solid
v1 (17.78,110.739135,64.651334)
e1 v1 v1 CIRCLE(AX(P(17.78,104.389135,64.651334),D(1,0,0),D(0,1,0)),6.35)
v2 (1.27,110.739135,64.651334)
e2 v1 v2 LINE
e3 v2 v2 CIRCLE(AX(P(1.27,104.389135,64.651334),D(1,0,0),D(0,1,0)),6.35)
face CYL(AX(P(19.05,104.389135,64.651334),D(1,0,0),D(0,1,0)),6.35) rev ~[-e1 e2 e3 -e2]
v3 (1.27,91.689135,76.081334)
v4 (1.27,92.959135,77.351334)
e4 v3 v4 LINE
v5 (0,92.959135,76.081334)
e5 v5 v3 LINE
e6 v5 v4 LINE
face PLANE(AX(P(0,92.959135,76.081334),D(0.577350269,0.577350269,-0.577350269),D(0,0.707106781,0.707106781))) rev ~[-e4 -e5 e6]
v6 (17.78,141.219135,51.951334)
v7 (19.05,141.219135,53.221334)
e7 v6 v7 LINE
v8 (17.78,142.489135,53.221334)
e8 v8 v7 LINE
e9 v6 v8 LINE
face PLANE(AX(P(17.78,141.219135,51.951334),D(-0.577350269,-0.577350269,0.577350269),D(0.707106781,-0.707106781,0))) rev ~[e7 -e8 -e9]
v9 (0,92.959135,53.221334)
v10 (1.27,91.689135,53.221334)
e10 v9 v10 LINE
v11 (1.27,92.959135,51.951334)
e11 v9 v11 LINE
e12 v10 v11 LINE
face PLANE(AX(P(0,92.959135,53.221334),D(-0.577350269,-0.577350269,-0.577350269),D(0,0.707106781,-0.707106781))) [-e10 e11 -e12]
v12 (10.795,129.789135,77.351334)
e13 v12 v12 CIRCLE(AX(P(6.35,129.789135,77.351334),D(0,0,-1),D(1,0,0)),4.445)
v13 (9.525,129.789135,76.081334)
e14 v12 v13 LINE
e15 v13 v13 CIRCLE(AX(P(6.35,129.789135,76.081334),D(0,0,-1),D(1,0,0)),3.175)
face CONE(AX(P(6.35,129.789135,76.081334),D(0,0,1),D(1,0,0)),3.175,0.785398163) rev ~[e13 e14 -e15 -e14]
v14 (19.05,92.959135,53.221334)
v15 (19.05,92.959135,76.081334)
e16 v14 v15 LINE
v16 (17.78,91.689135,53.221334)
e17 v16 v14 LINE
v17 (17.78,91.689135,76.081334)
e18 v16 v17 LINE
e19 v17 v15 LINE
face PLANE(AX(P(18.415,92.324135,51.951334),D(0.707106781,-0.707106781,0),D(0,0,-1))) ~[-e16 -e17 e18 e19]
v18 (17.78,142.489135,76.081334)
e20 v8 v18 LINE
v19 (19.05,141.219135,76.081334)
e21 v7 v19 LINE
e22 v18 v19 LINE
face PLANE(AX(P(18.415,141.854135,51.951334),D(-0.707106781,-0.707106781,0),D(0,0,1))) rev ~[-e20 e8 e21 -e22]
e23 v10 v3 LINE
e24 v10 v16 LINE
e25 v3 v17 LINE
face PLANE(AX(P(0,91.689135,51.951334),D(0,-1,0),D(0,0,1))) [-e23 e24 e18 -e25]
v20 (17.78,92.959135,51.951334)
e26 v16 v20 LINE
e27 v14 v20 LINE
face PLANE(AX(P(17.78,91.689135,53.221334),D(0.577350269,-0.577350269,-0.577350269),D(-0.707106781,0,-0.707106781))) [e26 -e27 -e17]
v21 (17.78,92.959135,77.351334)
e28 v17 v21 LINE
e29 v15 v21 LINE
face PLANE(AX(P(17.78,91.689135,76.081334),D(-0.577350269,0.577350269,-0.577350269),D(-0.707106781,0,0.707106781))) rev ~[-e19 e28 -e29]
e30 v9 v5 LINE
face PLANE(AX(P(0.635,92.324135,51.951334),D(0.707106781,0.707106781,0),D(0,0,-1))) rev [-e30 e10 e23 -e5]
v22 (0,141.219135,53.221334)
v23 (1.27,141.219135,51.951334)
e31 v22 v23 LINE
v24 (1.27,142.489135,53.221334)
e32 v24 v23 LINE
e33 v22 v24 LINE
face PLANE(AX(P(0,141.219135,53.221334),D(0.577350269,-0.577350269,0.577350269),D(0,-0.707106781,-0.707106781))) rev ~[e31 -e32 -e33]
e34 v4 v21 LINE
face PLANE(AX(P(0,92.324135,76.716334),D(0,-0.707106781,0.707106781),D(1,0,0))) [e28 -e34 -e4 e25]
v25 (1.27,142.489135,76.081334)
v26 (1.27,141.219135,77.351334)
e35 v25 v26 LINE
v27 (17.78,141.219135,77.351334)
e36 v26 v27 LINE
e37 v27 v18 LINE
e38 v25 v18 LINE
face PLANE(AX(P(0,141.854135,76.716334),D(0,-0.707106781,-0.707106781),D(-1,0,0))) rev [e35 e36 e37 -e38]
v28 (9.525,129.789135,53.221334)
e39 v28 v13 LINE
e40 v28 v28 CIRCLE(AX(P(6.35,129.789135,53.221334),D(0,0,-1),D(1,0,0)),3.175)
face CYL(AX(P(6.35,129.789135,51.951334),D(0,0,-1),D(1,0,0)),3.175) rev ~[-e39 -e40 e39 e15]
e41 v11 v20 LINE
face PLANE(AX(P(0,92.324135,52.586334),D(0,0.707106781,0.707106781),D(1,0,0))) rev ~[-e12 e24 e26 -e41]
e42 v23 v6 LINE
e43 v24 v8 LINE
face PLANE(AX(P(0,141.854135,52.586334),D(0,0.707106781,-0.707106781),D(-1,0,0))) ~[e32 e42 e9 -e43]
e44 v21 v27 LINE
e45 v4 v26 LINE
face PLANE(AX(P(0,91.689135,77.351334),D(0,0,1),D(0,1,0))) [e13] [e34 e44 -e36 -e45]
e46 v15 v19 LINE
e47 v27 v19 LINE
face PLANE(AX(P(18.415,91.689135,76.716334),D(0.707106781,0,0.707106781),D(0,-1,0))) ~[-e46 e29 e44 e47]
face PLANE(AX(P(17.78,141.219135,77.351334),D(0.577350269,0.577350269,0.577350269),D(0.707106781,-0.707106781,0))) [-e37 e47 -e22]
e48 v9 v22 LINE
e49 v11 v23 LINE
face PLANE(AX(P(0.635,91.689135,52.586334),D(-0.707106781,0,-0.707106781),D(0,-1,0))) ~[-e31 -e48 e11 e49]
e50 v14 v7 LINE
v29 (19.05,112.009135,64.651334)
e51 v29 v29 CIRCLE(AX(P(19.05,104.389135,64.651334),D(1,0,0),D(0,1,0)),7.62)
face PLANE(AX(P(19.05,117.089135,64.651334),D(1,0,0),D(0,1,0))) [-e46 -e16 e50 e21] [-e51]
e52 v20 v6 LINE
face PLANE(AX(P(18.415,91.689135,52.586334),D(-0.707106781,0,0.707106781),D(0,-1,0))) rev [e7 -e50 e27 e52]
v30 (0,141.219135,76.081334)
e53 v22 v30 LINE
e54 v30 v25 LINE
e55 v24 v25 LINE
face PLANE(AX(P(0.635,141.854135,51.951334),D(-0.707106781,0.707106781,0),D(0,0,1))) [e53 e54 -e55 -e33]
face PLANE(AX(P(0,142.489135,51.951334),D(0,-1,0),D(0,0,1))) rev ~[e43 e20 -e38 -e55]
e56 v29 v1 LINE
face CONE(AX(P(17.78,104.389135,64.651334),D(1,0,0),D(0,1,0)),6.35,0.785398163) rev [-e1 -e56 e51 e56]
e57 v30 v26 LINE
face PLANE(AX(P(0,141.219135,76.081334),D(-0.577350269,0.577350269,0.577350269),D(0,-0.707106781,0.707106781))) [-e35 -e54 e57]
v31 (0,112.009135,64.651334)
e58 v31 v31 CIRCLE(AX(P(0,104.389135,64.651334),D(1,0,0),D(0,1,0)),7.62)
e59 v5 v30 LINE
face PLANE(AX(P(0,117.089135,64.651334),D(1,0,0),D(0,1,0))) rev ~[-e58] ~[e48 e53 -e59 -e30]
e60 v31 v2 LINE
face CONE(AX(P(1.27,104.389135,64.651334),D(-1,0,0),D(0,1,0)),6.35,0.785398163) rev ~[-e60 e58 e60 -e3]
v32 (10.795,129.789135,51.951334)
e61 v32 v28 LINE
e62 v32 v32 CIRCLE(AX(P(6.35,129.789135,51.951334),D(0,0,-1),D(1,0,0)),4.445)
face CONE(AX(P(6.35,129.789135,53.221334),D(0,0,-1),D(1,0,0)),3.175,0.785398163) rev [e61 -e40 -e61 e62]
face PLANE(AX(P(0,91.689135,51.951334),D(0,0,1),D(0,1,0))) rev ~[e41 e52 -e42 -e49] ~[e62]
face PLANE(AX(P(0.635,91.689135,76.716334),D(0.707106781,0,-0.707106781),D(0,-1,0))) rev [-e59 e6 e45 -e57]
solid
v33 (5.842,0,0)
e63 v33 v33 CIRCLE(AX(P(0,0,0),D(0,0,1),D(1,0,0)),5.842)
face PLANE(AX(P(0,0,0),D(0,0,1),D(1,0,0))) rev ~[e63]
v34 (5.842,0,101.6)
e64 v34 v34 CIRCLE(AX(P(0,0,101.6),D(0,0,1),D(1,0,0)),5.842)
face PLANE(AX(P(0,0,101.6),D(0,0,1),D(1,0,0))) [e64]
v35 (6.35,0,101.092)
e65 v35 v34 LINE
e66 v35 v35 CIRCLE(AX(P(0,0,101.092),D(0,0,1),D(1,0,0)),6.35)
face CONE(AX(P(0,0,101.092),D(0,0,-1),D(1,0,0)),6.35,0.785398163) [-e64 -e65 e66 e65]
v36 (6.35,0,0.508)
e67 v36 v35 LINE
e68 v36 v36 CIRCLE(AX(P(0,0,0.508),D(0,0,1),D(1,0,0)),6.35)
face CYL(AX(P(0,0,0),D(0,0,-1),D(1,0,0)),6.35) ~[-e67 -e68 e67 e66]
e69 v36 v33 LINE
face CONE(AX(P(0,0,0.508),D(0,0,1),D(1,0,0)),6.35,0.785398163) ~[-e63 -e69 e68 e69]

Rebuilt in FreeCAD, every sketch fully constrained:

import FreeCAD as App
import Part
import Sketcher
from FreeCAD import Vector
Q = App.Units.Quantity


def edges_at(feature, points):
    """Names of the edges that pass closest to the given points."""
    edges = feature.Shape.Edges
    near = lambda p: min(range(len(edges)), key=lambda i: edges[i].distToShape(Part.Vertex(*p))[0])
    return sorted({f"Edge{near(p) + 1}" for p in points})

doc = App.newDocument("Part")
body = doc.addObject("PartDesign::Body", "Body")

# Sketch on XY plane
sketch1 = body.newObject("Sketcher::SketchObject", "Sketch")
sketch1.AttachmentSupport = (doc.getObject("XY_Plane"), [""])
sketch1.MapMode = "FlatFace"
sketch1.addGeometry(Part.Circle(Vector(0, 0, 0), Vector(0, 0, 1), 6.35), False)
sketch1.addConstraint([
    Sketcher.Constraint("Coincident", 0, 3, -1, 1),
    Sketcher.Constraint("Diameter", 0, Q("0.5 in")),
])
pad1 = body.newObject("PartDesign::Pad", "Pad")
pad1.Profile = sketch1
pad1.Length = Q("4 in")
doc.recompute()

chamfer = body.newObject("PartDesign::Chamfer", "Chamfer")
chamfer.Base = (pad1, edges_at(pad1, [(-6.35, 0, 101.6), (-6.35, 0, 0)]))
chamfer.Size = Q("0.02 in")
body2 = doc.addObject("PartDesign::Body", "Body001")

# Sketch on YZ plane
sketch2 = body2.newObject("Sketcher::SketchObject", "Sketch001")
sketch2.AttachmentSupport = (doc.getObject("YZ_Plane001"), [""])
sketch2.MapMode = "FlatFace"
sketch2.addGeometry([
    Part.LineSegment(Vector(91.689135, 77.351334, 0), Vector(91.689135, 51.951334, 0)),
    Part.LineSegment(Vector(91.689135, 51.951334, 0), Vector(142.489135, 51.951334, 0)),
    Part.LineSegment(Vector(142.489135, 51.951334, 0), Vector(142.489135, 77.351334, 0)),
    Part.LineSegment(Vector(142.489135, 77.351334, 0), Vector(91.689135, 77.351334, 0)),
], False)
sketch2.addConstraint([
    Sketcher.Constraint("Coincident", 0, 2, 1, 1),
    Sketcher.Constraint("Coincident", 1, 2, 2, 1),
    Sketcher.Constraint("Coincident", 2, 2, 3, 1),
    Sketcher.Constraint("Coincident", 3, 2, 0, 1),
    Sketcher.Constraint("Vertical", 0),
    Sketcher.Constraint("Horizontal", 1),
    Sketcher.Constraint("Vertical", 2),
    Sketcher.Constraint("Horizontal", 3),
    Sketcher.Constraint("DistanceX", 1, 1, 1, 2, Q("2 in")),
    Sketcher.Constraint("DistanceY", 0, 2, 0, 1, Q("1 in")),
    Sketcher.Constraint("DistanceX", -1, 1, 0, 2, 91.689135),
    Sketcher.Constraint("DistanceY", -1, 1, 0, 2, 51.951334),
])
pad2 = body2.newObject("PartDesign::Pad", "Pad001")
pad2.Profile = sketch2
pad2.Length = Q("0.75 in")

# Sketch on YZ plane
sketch3 = body2.newObject("Sketcher::SketchObject", "Sketch002")
sketch3.AttachmentSupport = (doc.getObject("YZ_Plane001"), [""])
sketch3.MapMode = "FlatFace"
sketch3.AttachmentOffset = App.Placement(Vector(0, 0, 0.75 * 25.4), App.Rotation())
sketch3.addGeometry(Part.Circle(Vector(104.389135, 64.651334, 0), Vector(0, 0, 1), 6.35), False)
sketch3.addConstraint([
    Sketcher.Constraint("Diameter", 0, Q("0.5 in")),
    Sketcher.Constraint("DistanceX", -1, 1, 0, 3, 104.389135),
    Sketcher.Constraint("DistanceY", -1, 1, 0, 3, 64.651334),
])
pocket1 = body2.newObject("PartDesign::Pocket", "Pocket")
pocket1.Profile = sketch3
pocket1.Length = Q("1 in")
doc.recompute()

chamfer2 = body2.newObject("PartDesign::Chamfer", "Chamfer001")
chamfer2.Base = (pocket1, ["Edge1"])
chamfer2.UseAllEdges = True
chamfer2.Size = Q("0.05 in")

# Sketch on XY plane
sketch4 = body2.newObject("Sketcher::SketchObject", "Sketch003")
sketch4.AttachmentSupport = (doc.getObject("XY_Plane001"), [""])
sketch4.MapMode = "FlatFace"
sketch4.AttachmentOffset = App.Placement(Vector(0, 0, 51.951334), App.Rotation())
sketch4.addGeometry(Part.Circle(Vector(6.35, 129.789135, 0), Vector(0, 0, 1), 3.175), False)
sketch4.addConstraint([
    Sketcher.Constraint("Diameter", 0, Q("0.25 in")),
    Sketcher.Constraint("DistanceX", -1, 1, 0, 3, Q("0.25 in")),
    Sketcher.Constraint("DistanceY", -1, 1, 0, 3, 129.789135),
])
pocket2 = body2.newObject("PartDesign::Pocket", "Pocket001")
pocket2.Profile = sketch4
pocket2.Length = Q("1.5 in")
pocket2.Reversed = True
doc.recompute()

chamfer3 = body2.newObject("PartDesign::Chamfer", "Chamfer002")
chamfer3.Base = (pocket2, edges_at(pocket2, [(3.175, 129.789, 51.951), (3.175, 129.789, 77.351)]))
chamfer3.Size = Q("0.05 in")

doc.recompute()
